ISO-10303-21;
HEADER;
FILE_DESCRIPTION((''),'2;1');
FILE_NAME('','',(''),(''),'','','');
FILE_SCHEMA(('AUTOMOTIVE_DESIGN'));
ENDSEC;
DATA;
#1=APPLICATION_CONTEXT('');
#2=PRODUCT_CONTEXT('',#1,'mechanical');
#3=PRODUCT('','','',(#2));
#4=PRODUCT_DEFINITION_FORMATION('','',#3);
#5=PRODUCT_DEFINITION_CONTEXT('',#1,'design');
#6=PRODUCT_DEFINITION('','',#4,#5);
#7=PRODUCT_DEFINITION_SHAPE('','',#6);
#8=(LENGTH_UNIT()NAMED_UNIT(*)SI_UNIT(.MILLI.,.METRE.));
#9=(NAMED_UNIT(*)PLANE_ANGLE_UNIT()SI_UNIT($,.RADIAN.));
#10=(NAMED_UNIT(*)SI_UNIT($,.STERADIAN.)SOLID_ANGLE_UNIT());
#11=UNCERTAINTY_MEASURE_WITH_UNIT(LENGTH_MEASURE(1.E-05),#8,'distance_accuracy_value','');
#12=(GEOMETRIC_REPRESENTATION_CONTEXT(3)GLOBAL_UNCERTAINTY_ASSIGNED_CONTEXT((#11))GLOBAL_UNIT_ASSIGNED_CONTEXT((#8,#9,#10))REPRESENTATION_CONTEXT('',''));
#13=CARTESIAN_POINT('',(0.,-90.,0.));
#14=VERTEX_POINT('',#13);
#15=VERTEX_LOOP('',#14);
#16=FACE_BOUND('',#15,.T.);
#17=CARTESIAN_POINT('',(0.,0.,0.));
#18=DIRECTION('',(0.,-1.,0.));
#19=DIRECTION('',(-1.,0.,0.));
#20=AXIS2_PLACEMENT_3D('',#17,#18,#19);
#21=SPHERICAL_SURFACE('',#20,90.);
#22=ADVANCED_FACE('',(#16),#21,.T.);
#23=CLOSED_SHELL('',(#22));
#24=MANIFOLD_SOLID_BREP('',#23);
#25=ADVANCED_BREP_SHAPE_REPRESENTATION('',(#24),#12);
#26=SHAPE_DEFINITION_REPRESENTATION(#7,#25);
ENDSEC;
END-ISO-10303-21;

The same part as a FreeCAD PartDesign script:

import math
import FreeCAD as App
import Part
import Sketcher
Q = App.Units.Quantity

doc = App.newDocument("Part")
body = doc.addObject("PartDesign::Body", "Body")

sketch1 = doc.addObject("Sketcher::SketchObject", "Sketch")
body.addObject(sketch1)
sketch1.AttachmentSupport = (doc.XY_Plane, [""])
sketch1.MapMode = "FlatFace"
sketch1.addGeometry([
    Part.LineSegment(App.Vector(0, -90, 0), App.Vector(0, 90, 0)),
    Part.ArcOfCircle(Part.Circle(App.Vector(0, 0, 0), App.Vector(0, 0, 1), 90), math.radians(90), math.radians(270)),
], False)
sketch1.addConstraint([
    Sketcher.Constraint("Coincident", 0, 1, 1, 2),
    Sketcher.Constraint("Coincident", 1, 1, 0, 2),
    Sketcher.Constraint("Vertical", 0),
    Sketcher.Constraint("Coincident", 1, 3, -1, 1),
    Sketcher.Constraint("PointOnObject", 0, 1, -2),
    Sketcher.Constraint("Radius", 1, Q("90 mm")),
])
revolution = doc.addObject("PartDesign::Revolution", "Revolution")
body.addObject(revolution)
revolution.Profile = sketch1
revolution.ReferenceAxis = (sketch1, ["V_Axis"])
revolution.Angle = 360

doc.recompute()
